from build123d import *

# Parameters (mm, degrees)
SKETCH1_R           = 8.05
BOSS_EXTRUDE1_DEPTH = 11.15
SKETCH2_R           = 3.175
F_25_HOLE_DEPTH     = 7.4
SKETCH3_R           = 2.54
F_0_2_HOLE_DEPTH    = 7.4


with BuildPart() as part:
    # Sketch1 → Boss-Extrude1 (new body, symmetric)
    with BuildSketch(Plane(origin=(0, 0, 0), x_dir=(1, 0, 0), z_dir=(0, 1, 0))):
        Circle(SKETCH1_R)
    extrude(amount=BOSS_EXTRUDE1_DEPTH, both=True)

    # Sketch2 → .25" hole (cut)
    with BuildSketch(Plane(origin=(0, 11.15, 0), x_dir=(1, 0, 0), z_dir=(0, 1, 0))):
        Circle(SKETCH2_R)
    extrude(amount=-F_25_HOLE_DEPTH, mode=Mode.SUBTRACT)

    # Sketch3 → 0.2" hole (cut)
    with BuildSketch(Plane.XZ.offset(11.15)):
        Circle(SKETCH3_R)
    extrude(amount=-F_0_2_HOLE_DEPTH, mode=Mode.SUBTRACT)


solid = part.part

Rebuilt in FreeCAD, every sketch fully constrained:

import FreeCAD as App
import Part
import Sketcher

V = App.Vector
Q = App.Units.Quantity

doc = App.newDocument("Part")
body = doc.addObject("PartDesign::Body", "Body")

sketch1 = body.newObject("Sketcher::SketchObject", "Sketch")
sketch1.AttachmentSupport = (doc.getObject("XZ_Plane"), [""])
sketch1.MapMode = "FlatFace"
sketch1.addGeometry(Part.Circle(V(0, 0, 0), V(0, 0, 1), 8), False)
sketch1.addConstraint([
    Sketcher.Constraint("Coincident", 0, 3, -1, 1),
    Sketcher.Constraint("Diameter", 0, Q("16.1 mm")),
])
pad1 = body.newObject("PartDesign::Pad", "Pad")
pad1.Profile = sketch1
pad1.Length = 22.3
pad1.Midplane = True

sketch2 = body.newObject("Sketcher::SketchObject", "Sketch001")
sketch2.AttachmentSupport = (doc.getObject("XZ_Plane"), [""])
sketch2.MapMode = "FlatFace"
sketch2.AttachmentOffset = App.Placement(V(0, 0, -11.15), App.Rotation())
sketch2.addGeometry(Part.Circle(V(0, 0, 0), V(0, 0, 1), 3.2), False)
sketch2.addConstraint([
    Sketcher.Constraint("Coincident", 0, 3, -1, 1),
    Sketcher.Constraint("Diameter", 0, Q("6.35 mm")),
])
pocket1 = body.newObject("PartDesign::Pocket", "Pocket")
pocket1.Profile = sketch2
pocket1.Length = 7.4
pocket1.Reversed = True

sketch3 = body.newObject("Sketcher::SketchObject", "Sketch002")
sketch3.AttachmentSupport = (doc.getObject("XZ_Plane"), [""])
sketch3.MapMode = "FlatFace"
sketch3.AttachmentOffset = App.Placement(V(0, 0, 11.15), App.Rotation())
sketch3.addGeometry(Part.Circle(V(0, 0, 0), V(0, 0, 1), 2.5), False)
sketch3.addConstraint([
    Sketcher.Constraint("Coincident", 0, 3, -1, 1),
    Sketcher.Constraint("Diameter", 0, Q("5.08 mm")),
])
pocket2 = body.newObject("PartDesign::Pocket", "Pocket001")
pocket2.Profile = sketch3
pocket2.Length = 7.4

doc.recompute()
